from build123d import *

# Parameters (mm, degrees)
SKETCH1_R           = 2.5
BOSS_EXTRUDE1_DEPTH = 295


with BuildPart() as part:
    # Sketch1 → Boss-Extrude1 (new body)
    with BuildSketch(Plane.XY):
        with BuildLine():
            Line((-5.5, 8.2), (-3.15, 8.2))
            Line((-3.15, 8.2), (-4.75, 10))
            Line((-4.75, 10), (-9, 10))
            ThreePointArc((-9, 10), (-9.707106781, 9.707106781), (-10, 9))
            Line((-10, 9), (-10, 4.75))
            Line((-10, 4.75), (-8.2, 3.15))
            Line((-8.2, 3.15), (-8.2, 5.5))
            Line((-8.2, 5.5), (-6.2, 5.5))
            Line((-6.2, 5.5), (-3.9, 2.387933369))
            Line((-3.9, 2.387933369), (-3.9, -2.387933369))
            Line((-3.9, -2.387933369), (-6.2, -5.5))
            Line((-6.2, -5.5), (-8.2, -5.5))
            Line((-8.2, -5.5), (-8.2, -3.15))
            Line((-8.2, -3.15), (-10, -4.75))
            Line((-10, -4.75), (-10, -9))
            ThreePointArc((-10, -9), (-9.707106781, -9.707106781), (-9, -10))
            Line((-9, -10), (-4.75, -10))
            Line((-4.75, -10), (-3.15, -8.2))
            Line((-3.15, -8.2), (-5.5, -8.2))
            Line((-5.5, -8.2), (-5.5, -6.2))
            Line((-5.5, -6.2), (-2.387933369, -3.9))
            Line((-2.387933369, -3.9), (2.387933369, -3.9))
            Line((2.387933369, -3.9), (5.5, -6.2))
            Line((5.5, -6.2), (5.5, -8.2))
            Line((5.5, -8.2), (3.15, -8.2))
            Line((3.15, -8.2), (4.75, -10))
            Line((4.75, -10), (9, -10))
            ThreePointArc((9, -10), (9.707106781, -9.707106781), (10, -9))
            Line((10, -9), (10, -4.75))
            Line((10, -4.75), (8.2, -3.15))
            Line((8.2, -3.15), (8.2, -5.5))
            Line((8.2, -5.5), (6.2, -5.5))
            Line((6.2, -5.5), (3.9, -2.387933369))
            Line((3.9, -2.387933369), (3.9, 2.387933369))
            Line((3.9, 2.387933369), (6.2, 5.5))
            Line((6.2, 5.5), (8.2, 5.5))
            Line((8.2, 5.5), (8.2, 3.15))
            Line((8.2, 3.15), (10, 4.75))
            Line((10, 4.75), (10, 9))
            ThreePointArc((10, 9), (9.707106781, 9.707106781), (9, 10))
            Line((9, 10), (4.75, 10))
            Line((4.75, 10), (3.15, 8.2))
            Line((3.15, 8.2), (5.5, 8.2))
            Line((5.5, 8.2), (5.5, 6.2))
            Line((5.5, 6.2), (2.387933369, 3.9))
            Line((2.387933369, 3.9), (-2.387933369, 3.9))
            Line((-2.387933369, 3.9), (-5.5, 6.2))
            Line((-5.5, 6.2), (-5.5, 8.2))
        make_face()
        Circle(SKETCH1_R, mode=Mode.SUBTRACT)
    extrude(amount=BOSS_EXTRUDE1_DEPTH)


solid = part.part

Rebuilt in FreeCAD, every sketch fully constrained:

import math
import FreeCAD as App
import Part
import Sketcher
Q = App.Units.Quantity

doc = App.newDocument("Part")
body = doc.addObject("PartDesign::Body", "Body")

# Sketch on XY plane
sketch1 = body.newObject("Sketcher::SketchObject", "Sketch")
sketch1.AttachmentSupport = (doc.getObject("XY_Plane"), [""])
sketch1.MapMode = "FlatFace"
sketch1.addGeometry(Part.LineSegment(App.Vector(-5.5, 8.2, 0), App.Vector(-3.15, 8.2, 0)), False)
sketch1.addGeometry(Part.LineSegment(App.Vector(-3.15, 8.2, 0), App.Vector(-4.75, 10, 0)), False)
sketch1.addGeometry(Part.LineSegment(App.Vector(-4.75, 10, 0), App.Vector(-9, 10, 0)), False)
sketch1.addGeometry(Part.ArcOfCircle(Part.Circle(App.Vector(-9, 9, 0), App.Vector(0, 0, 1), 1), math.radians(90), math.radians(180)), False)
sketch1.addGeometry(Part.LineSegment(App.Vector(-10, 9, 0), App.Vector(-10, 4.75, 0)), False)
sketch1.addGeometry(Part.LineSegment(App.Vector(-10, 4.75, 0), App.Vector(-8.2, 3.15, 0)), False)
sketch1.addGeometry(Part.LineSegment(App.Vector(-8.2, 3.15, 0), App.Vector(-8.2, 5.5, 0)), False)
sketch1.addGeometry(Part.LineSegment(App.Vector(-8.2, 5.5, 0), App.Vector(-6.2, 5.5, 0)), False)
sketch1.addGeometry(Part.LineSegment(App.Vector(-6.2, 5.5, 0), App.Vector(-3.9, 2.387933, 0)), False)
sketch1.addGeometry(Part.LineSegment(App.Vector(-3.9, 2.387933, 0), App.Vector(-3.9, -2.387933, 0)), False)
sketch1.addGeometry(Part.LineSegment(App.Vector(-3.9, -2.387933, 0), App.Vector(-6.2, -5.5, 0)), False)
sketch1.addGeometry(Part.LineSegment(App.Vector(-6.2, -5.5, 0), App.Vector(-8.2, -5.5, 0)), False)
sketch1.addGeometry(Part.LineSegment(App.Vector(-8.2, -5.5, 0), App.Vector(-8.2, -3.15, 0)), False)
sketch1.addGeometry(Part.LineSegment(App.Vector(-8.2, -3.15, 0), App.Vector(-10, -4.75, 0)), False)
sketch1.addGeometry(Part.LineSegment(App.Vector(-10, -4.75, 0), App.Vector(-10, -9, 0)), False)
sketch1.addGeometry(Part.ArcOfCircle(Part.Circle(App.Vector(-9, -9, 0), App.Vector(0, 0, 1), 1), math.radians(-180), math.radians(-90)), False)
sketch1.addGeometry(Part.LineSegment(App.Vector(-9, -10, 0), App.Vector(-4.75, -10, 0)), False)
sketch1.addGeometry(Part.LineSegment(App.Vector(-4.75, -10, 0), App.Vector(-3.15, -8.2, 0)), False)
sketch1.addGeometry(Part.LineSegment(App.Vector(-3.15, -8.2, 0), App.Vector(-5.5, -8.2, 0)), False)
sketch1.addGeometry(Part.LineSegment(App.Vector(-5.5, -8.2, 0), App.Vector(-5.5, -6.2, 0)), False)
sketch1.addGeometry(Part.LineSegment(App.Vector(-5.5, -6.2, 0), App.Vector(-2.387933, -3.9, 0)), False)
sketch1.addGeometry(Part.LineSegment(App.Vector(-2.387933, -3.9, 0), App.Vector(2.387933, -3.9, 0)), False)
sketch1.addGeometry(Part.LineSegment(App.Vector(2.387933, -3.9, 0), App.Vector(5.5, -6.2, 0)), False)
sketch1.addGeometry(Part.LineSegment(App.Vector(5.5, -6.2, 0), App.Vector(5.5, -8.2, 0)), False)
sketch1.addGeometry(Part.LineSegment(App.Vector(5.5, -8.2, 0), App.Vector(3.15, -8.2, 0)), False)
sketch1.addGeometry(Part.LineSegment(App.Vector(3.15, -8.2, 0), App.Vector(4.75, -10, 0)), False)
sketch1.addGeometry(Part.LineSegment(App.Vector(4.75, -10, 0), App.Vector(9, -10, 0)), False)
sketch1.addGeometry(Part.ArcOfCircle(Part.Circle(App.Vector(9, -9, 0), App.Vector(0, 0, 1), 1), math.radians(-90), math.radians(0)), False)
sketch1.addGeometry(Part.LineSegment(App.Vector(10, -9, 0), App.Vector(10, -4.75, 0)), False)
sketch1.addGeometry(Part.LineSegment(App.Vector(10, -4.75, 0), App.Vector(8.2, -3.15, 0)), False)
sketch1.addGeometry(Part.LineSegment(App.Vector(8.2, -3.15, 0), App.Vector(8.2, -5.5, 0)), False)
sketch1.addGeometry(Part.LineSegment(App.Vector(8.2, -5.5, 0), App.Vector(6.2, -5.5, 0)), False)
sketch1.addGeometry(Part.LineSegment(App.Vector(6.2, -5.5, 0), App.Vector(3.9, -2.387933, 0)), False)
sketch1.addGeometry(Part.LineSegment(App.Vector(3.9, -2.387933, 0), App.Vector(3.9, 2.387933, 0)), False)
sketch1.addGeometry(Part.LineSegment(App.Vector(3.9, 2.387933, 0), App.Vector(6.2, 5.5, 0)), False)
sketch1.addGeometry(Part.LineSegment(App.Vector(6.2, 5.5, 0), App.Vector(8.2, 5.5, 0)), False)
sketch1.addGeometry(Part.LineSegment(App.Vector(8.2, 5.5, 0), App.Vector(8.2, 3.15, 0)), False)
sketch1.addGeometry(Part.LineSegment(App.Vector(8.2, 3.15, 0), App.Vector(10, 4.75, 0)), False)
sketch1.addGeometry(Part.LineSegment(App.Vector(10, 4.75, 0), App.Vector(10, 9, 0)), False)
sketch1.addGeometry(Part.ArcOfCircle(Part.Circle(App.Vector(9, 9, 0), App.Vector(0, 0, 1), 1), math.radians(0), math.radians(90)), False)
sketch1.addGeometry(Part.LineSegment(App.Vector(9, 10, 0), App.Vector(4.75, 10, 0)), False)
sketch1.addGeometry(Part.LineSegment(App.Vector(4.75, 10, 0), App.Vector(3.15, 8.2, 0)), False)
sketch1.addGeometry(Part.LineSegment(App.Vector(3.15, 8.2, 0), App.Vector(5.5, 8.2, 0)), False)
sketch1.addGeometry(Part.LineSegment(App.Vector(5.5, 8.2, 0), App.Vector(5.5, 6.2, 0)), False)
sketch1.addGeometry(Part.LineSegment(App.Vector(5.5, 6.2, 0), App.Vector(2.387933, 3.9, 0)), False)
sketch1.addGeometry(Part.LineSegment(App.Vector(2.387933, 3.9, 0), App.Vector(-2.387933, 3.9, 0)), False)
sketch1.addGeometry(Part.LineSegment(App.Vector(-2.387933, 3.9, 0), App.Vector(-5.5, 6.2, 0)), False)
sketch1.addGeometry(Part.LineSegment(App.Vector(-5.5, 6.2, 0), App.Vector(-5.5, 8.2, 0)), False)
sketch1.addGeometry(Part.Circle(App.Vector(0, 0, 0), App.Vector(0, 0, 1), 2.5), False)
sketch1.addConstraint(Sketcher.Constraint("Coincident", 0, 2, 1, 1))
sketch1.addConstraint(Sketcher.Constraint("Coincident", 1, 2, 2, 1))
sketch1.addConstraint(Sketcher.Constraint("Tangent", 2, 2, 3, 1))
sketch1.addConstraint(Sketcher.Constraint("Tangent", 3, 2, 4, 1))
sketch1.addConstraint(Sketcher.Constraint("Coincident", 4, 2, 5, 1))
sketch1.addConstraint(Sketcher.Constraint("Coincident", 5, 2, 6, 1))
sketch1.addConstraint(Sketcher.Constraint("Coincident", 6, 2, 7, 1))
sketch1.addConstraint(Sketcher.Constraint("Coincident", 7, 2, 8, 1))
sketch1.addConstraint(Sketcher.Constraint("Coincident", 8, 2, 9, 1))
sketch1.addConstraint(Sketcher.Constraint("Coincident", 9, 2, 10, 1))
sketch1.addConstraint(Sketcher.Constraint("Coincident", 10, 2, 11, 1))
sketch1.addConstraint(Sketcher.Constraint("Coincident", 11, 2, 12, 1))
sketch1.addConstraint(Sketcher.Constraint("Coincident", 12, 2, 13, 1))
sketch1.addConstraint(Sketcher.Constraint("Coincident", 13, 2, 14, 1))
sketch1.addConstraint(Sketcher.Constraint("Tangent", 14, 2, 15, 1))
sketch1.addConstraint(Sketcher.Constraint("Tangent", 15, 2, 16, 1))
sketch1.addConstraint(Sketcher.Constraint("Coincident", 16, 2, 17, 1))
sketch1.addConstraint(Sketcher.Constraint("Coincident", 17, 2, 18, 1))
sketch1.addConstraint(Sketcher.Constraint("Coincident", 18, 2, 19, 1))
sketch1.addConstraint(Sketcher.Constraint("Coincident", 19, 2, 20, 1))
sketch1.addConstraint(Sketcher.Constraint("Coincident", 20, 2, 21, 1))
sketch1.addConstraint(Sketcher.Constraint("Coincident", 21, 2, 22, 1))
sketch1.addConstraint(Sketcher.Constraint("Coincident", 22, 2, 23, 1))
sketch1.addConstraint(Sketcher.Constraint("Coincident", 23, 2, 24, 1))
sketch1.addConstraint(Sketcher.Constraint("Coincident", 24, 2, 25, 1))
sketch1.addConstraint(Sketcher.Constraint("Coincident", 25, 2, 26, 1))
sketch1.addConstraint(Sketcher.Constraint("Tangent", 26, 2, 27, 1))
sketch1.addConstraint(Sketcher.Constraint("Tangent", 27, 2, 28, 1))
sketch1.addConstraint(Sketcher.Constraint("Coincident", 28, 2, 29, 1))
sketch1.addConstraint(Sketcher.Constraint("Coincident", 29, 2, 30, 1))
sketch1.addConstraint(Sketcher.Constraint("Coincident", 30, 2, 31, 1))
sketch1.addConstraint(Sketcher.Constraint("Coincident", 31, 2, 32, 1))
sketch1.addConstraint(Sketcher.Constraint("Coincident", 32, 2, 33, 1))
sketch1.addConstraint(Sketcher.Constraint("Coincident", 33, 2, 34, 1))
sketch1.addConstraint(Sketcher.Constraint("Coincident", 34, 2, 35, 1))
sketch1.addConstraint(Sketcher.Constraint("Coincident", 35, 2, 36, 1))
sketch1.addConstraint(Sketcher.Constraint("Coincident", 36, 2, 37, 1))
sketch1.addConstraint(Sketcher.Constraint("Coincident", 37, 2, 38, 1))
sketch1.addConstraint(Sketcher.Constraint("Tangent", 38, 2, 39, 1))
sketch1.addConstraint(Sketcher.Constraint("Tangent", 39, 2, 40, 1))
sketch1.addConstraint(Sketcher.Constraint("Coincident", 40, 2, 41, 1))
sketch1.addConstraint(Sketcher.Constraint("Coincident", 41, 2, 42, 1))
sketch1.addConstraint(Sketcher.Constraint("Coincident", 42, 2, 43, 1))
sketch1.addConstraint(Sketcher.Constraint("Coincident", 43, 2, 44, 1))
sketch1.addConstraint(Sketcher.Constraint("Coincident", 44, 2, 45, 1))
sketch1.addConstraint(Sketcher.Constraint("Coincident", 45, 2, 46, 1))
sketch1.addConstraint(Sketcher.Constraint("Coincident", 46, 2, 47, 1))
sketch1.addConstraint(Sketcher.Constraint("Coincident", 47, 2, 0, 1))
sketch1.addConstraint(Sketcher.Constraint("Horizontal", 0))
sketch1.addConstraint(Sketcher.Constraint("Horizontal", 2))
sketch1.addConstraint(Sketcher.Constraint("Vertical", 4))
sketch1.addConstraint(Sketcher.Constraint("Vertical", 6))
sketch1.addConstraint(Sketcher.Constraint("Horizontal", 7))
sketch1.addConstraint(Sketcher.Constraint("Vertical", 9))
sketch1.addConstraint(Sketcher.Constraint("Horizontal", 11))
sketch1.addConstraint(Sketcher.Constraint("Vertical", 12))
sketch1.addConstraint(Sketcher.Constraint("Vertical", 14))
sketch1.addConstraint(Sketcher.Constraint("Horizontal", 16))
sketch1.addConstraint(Sketcher.Constraint("Horizontal", 18))
sketch1.addConstraint(Sketcher.Constraint("Vertical", 19))
sketch1.addConstraint(Sketcher.Constraint("Horizontal", 21))
sketch1.addConstraint(Sketcher.Constraint("Vertical", 23))
sketch1.addConstraint(Sketcher.Constraint("Horizontal", 24))
sketch1.addConstraint(Sketcher.Constraint("Horizontal", 26))
sketch1.addConstraint(Sketcher.Constraint("Vertical", 28))
sketch1.addConstraint(Sketcher.Constraint("Vertical", 30))
sketch1.addConstraint(Sketcher.Constraint("Horizontal", 31))
sketch1.addConstraint(Sketcher.Constraint("Vertical", 33))
sketch1.addConstraint(Sketcher.Constraint("Horizontal", 35))
sketch1.addConstraint(Sketcher.Constraint("Vertical", 36))
sketch1.addConstraint(Sketcher.Constraint("Vertical", 38))
sketch1.addConstraint(Sketcher.Constraint("Horizontal", 40))
sketch1.addConstraint(Sketcher.Constraint("Horizontal", 42))
sketch1.addConstraint(Sketcher.Constraint("Vertical", 43))
sketch1.addConstraint(Sketcher.Constraint("Horizontal", 45))
sketch1.addConstraint(Sketcher.Constraint("Vertical", 47))
sketch1.addConstraint(Sketcher.Constraint("Coincident", 48, 3, -1, 1))
sketch1.addConstraint(Sketcher.Constraint("Equal", 3, 15))
sketch1.addConstraint(Sketcher.Constraint("Equal", 15, 27))
sketch1.addConstraint(Sketcher.Constraint("Equal", 27, 39))
sketch1.addConstraint(Sketcher.Constraint("Symmetric", 3, 3, 27, 3, -1, 1))
sketch1.addConstraint(Sketcher.Constraint("Symmetric", 15, 3, 39, 3, -1, 1))
sketch1.addConstraint(Sketcher.Constraint("Symmetric", 0, 2, 24, 2, -1, 1))
sketch1.addConstraint(Sketcher.Constraint("Symmetric", 5, 2, 29, 2, -1, 1))
sketch1.addConstraint(Sketcher.Constraint("Symmetric", 7, 2, 31, 2, -1, 1))
sketch1.addConstraint(Sketcher.Constraint("Symmetric", 8, 2, 32, 2, -1, 1))
sketch1.addConstraint(Sketcher.Constraint("Symmetric", 10, 2, 34, 2, -1, 1))
sketch1.addConstraint(Sketcher.Constraint("Symmetric", 12, 2, 36, 2, -1, 1))
sketch1.addConstraint(Sketcher.Constraint("Symmetric", 17, 2, 41, 2, -1, 1))
sketch1.addConstraint(Sketcher.Constraint("Symmetric", 19, 2, 43, 2, -1, 1))
sketch1.addConstraint(Sketcher.Constraint("Symmetric", 20, 2, 44, 2, -1, 1))
sketch1.addConstraint(Sketcher.Constraint("Symmetric", 22, 2, 46, 2, -1, 1))
sketch1.addConstraint(Sketcher.Constraint("Symmetric", 15, 3, 27, 3, -2))
sketch1.addConstraint(Sketcher.Constraint("Symmetric", 19, 2, 22, 2, -2))
sketch1.addConstraint(Sketcher.Constraint("Symmetric", 17, 2, 24, 2, -2))
sketch1.addConstraint(Sketcher.Constraint("Symmetric", 12, 2, 29, 2, -2))
sketch1.addConstraint(Sketcher.Constraint("Symmetric", 10, 2, 31, 2, -2))
sketch1.addConstraint(Sketcher.Constraint("Perpendicular", 1, 13))
sketch1.addConstraint(Sketcher.Constraint("Perpendicular", 5, 17))
sketch1.addConstraint(Sketcher.Constraint("Perpendicular", 8, 20))
sketch1.addConstraint(Sketcher.Constraint("Perpendicular", 10, 22))
sketch1.addConstraint(Sketcher.Constraint("Perpendicular", 13, 25))
sketch1.addConstraint(Sketcher.Constraint("Perpendicular", 17, 29))
sketch1.addConstraint(Sketcher.Constraint("Perpendicular", 22, 34))
sketch1.addConstraint(Sketcher.Constraint("Perpendicular", 25, 37))
sketch1.addConstraint(Sketcher.Constraint("Perpendicular", 29, 41))
sketch1.addConstraint(Sketcher.Constraint("Perpendicular", 34, 46))
sketch1.addConstraint(Sketcher.Constraint("Horizontal", 13, 2, 28, 2))
sketch1.addConstraint(Sketcher.Constraint("Horizontal", 9, 2, 32, 2))
sketch1.addConstraint(Sketcher.Constraint("Equal", 40, 4))
sketch1.addConstraint(Sketcher.Constraint("Equal", 42, 6))
sketch1.addConstraint(Sketcher.Constraint("Equal", 45, 9))
sketch1.addConstraint(Sketcher.Constraint("Equal", 35, 19))
sketch1.addConstraint(Sketcher.Constraint("Equal", 1, 5))
sketch1.addConstraint(Sketcher.Constraint("Equal", 10, 20))
sketch1.addConstraint(Sketcher.Constraint("Diameter", 48, Q("5 mm")))
sketch1.addConstraint(Sketcher.Constraint("Radius", 3, Q("1 mm")))
sketch1.addConstraint(Sketcher.Constraint("DistanceX", 7, 1, 7, 2, Q("2 mm")))
sketch1.addConstraint(Sketcher.Constraint("DistanceX", 3, 3, -1, 1, Q("9 mm")))
sketch1.addConstraint(Sketcher.Constraint("DistanceX", 0, 1, 0, 2, Q("2.35 mm")))
sketch1.addConstraint(Sketcher.Constraint("DistanceX", 2, 2, 2, 1, Q("4.25 mm")))
sketch1.addConstraint(Sketcher.Constraint("DistanceY", -1, 1, 0, 2, Q("8.2 mm")))
sketch1.addConstraint(Sketcher.Constraint("DistanceY", -1, 1, 6, 2, Q("5.5 mm")))
sketch1.addConstraint(Sketcher.Constraint("DistanceX", 8, 2, -1, 1, Q("3.9 mm")))
sketch1.addConstraint(Sketcher.Constraint("Distance", 8, Q("3.869749 mm")))
pad1 = body.newObject("PartDesign::Pad", "Pad")
pad1.Profile = sketch1
pad1.Length = 295

doc.recompute()
